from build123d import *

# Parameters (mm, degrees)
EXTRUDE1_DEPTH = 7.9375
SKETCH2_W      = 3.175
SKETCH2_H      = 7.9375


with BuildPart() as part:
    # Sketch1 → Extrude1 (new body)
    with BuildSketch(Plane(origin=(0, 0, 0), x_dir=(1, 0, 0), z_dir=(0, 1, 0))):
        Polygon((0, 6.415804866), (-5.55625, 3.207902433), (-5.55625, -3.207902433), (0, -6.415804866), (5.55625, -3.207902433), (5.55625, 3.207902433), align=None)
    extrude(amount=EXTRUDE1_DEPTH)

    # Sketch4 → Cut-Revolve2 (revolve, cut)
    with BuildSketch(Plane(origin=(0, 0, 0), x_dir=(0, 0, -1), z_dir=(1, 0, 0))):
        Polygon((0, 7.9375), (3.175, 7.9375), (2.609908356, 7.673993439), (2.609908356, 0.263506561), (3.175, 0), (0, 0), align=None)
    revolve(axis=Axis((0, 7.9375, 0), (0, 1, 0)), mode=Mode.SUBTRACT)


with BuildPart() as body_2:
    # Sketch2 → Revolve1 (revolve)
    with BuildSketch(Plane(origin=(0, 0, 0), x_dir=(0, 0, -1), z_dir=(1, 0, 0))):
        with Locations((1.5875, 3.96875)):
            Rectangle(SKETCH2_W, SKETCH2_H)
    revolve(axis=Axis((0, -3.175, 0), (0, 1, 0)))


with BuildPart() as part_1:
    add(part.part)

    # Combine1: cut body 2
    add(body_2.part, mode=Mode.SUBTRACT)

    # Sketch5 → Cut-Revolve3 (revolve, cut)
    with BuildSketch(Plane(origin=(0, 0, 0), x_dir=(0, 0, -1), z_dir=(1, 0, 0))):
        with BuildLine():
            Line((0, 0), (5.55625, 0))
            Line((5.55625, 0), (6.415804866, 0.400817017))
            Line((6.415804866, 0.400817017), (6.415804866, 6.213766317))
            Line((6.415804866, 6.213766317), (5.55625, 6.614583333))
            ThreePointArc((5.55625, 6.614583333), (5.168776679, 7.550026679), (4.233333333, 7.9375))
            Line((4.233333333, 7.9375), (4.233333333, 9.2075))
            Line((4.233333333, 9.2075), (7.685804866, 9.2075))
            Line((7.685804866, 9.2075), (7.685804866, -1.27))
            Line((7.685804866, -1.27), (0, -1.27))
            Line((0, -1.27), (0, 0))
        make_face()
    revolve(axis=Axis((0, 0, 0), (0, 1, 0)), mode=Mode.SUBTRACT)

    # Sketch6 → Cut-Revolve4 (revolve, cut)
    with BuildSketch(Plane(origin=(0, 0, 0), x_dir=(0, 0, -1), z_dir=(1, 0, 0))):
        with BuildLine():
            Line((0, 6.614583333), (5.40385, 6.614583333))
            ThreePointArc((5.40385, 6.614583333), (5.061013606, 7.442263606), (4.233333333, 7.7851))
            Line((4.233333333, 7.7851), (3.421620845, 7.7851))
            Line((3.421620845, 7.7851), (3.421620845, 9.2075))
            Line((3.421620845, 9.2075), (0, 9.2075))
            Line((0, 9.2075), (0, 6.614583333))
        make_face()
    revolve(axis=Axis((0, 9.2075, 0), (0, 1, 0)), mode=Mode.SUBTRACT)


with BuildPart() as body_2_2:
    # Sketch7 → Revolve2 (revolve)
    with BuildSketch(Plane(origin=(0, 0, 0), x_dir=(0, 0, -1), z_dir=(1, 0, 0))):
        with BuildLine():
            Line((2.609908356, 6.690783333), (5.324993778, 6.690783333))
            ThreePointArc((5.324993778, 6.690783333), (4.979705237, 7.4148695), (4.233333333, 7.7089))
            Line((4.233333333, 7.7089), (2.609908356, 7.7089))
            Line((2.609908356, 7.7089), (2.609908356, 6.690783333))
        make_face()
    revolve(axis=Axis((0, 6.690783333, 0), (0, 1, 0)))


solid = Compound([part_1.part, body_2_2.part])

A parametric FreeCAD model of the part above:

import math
import FreeCAD as App
import Part
import Sketcher
Q = App.Units.Quantity


def add_polygon(sketch, points):
    """Adds a closed chain of lines whose ends are joined by coincident constraints."""
    first, n = sketch.GeometryCount, len(points)
    for a, b in zip(points, points[1:] + points[:1]):
        sketch.addGeometry(Part.LineSegment(App.Vector(*a, 0), App.Vector(*b, 0)), False)
    for i in range(n):
        sketch.addConstraint(Sketcher.Constraint("Coincident", first + i, 2, first + (i + 1) % n, 1))

doc = App.newDocument("Part")
params = doc.addObject("Spreadsheet::Sheet", "Params")
for row, (alias, value) in enumerate([
    ("pad1_length", "0.3125 in"),
    ("sketch2_width", "0.3125 in"),
    ("sketch2_height", "0.125 in"),
    ("groove_angle", "360 deg"),
    ("sketch3_width", "0.3125 in"),
    ("sketch3_height", "0.125 in"),
    ("revolution_angle", "360 deg"),
    ("sketch4_width", "0.05 in"),
    ("sketch4_height", "0.21875 in"),
    ("groove2_angle", "360 deg"),
    ("sketch5_width", "0.056 in"),
    ("groove3_angle", "360 deg"),
    ("revolution2_angle", "360 deg"),
], start=1):
    params.set(f"A{row}", alias)
    params.set(f"B{row}", "=" + value)
    params.setAlias(f"B{row}", alias)

body = doc.addObject("PartDesign::Body", "Body")

# Sketch on XZ plane
sketch1 = doc.addObject("Sketcher::SketchObject", "Sketch")
body.addObject(sketch1)
sketch1.AttachmentSupport = (doc.XZ_Plane, [""])
sketch1.MapMode = "FlatFace"
add_polygon(sketch1, [(0, -6), (-6, -3), (-6, 3), (0, 6), (6, 3), (6, -3)])  # lines 0-5
sketch1.addConstraint(Sketcher.Constraint("Vertical", 1))
sketch1.addConstraint(Sketcher.Constraint("Vertical", 4))
sketch1.addConstraint(Sketcher.Constraint("Symmetric", 0, 2, 3, 2, -1, 1))
sketch1.addConstraint(Sketcher.Constraint("Symmetric", 2, 2, 5, 2, -1, 1))
sketch1.addConstraint(Sketcher.Constraint("PointOnObject", 2, 2, -2))
sketch1.addConstraint(Sketcher.Constraint("Parallel", 2, 5))
sketch1.addConstraint(Sketcher.Constraint("Horizontal", 1, 2, 3, 2))
sketch1.addConstraint(Sketcher.Constraint("Angle", 0, Q("150 deg")))
sketch1.addConstraint(Sketcher.Constraint("DistanceX", 0, 2, -1, 1, Q("0.21875 in")))
sketch1.addConstraint(Sketcher.Constraint("DistanceY", 1, 1, 1, 2, Q("6.415805 mm")))
pad1 = doc.addObject("PartDesign::Pad", "Pad")
body.addObject(pad1)
pad1.Profile = sketch1
pad1.setExpression("Length", "Params.pad1_length")
pad1.Reversed = True

# Sketch on YZ plane
sketch2 = doc.addObject("Sketcher::SketchObject", "Sketch001")
body.addObject(sketch2)
sketch2.AttachmentSupport = (doc.YZ_Plane, [""])
sketch2.MapMode = "FlatFace"
add_polygon(sketch2, [(7.9, -3.2), (7.9, 0), (0, 0), (0, -3.2), (0.3, -2.6), (7.7, -2.6)])  # lines 0-5
sketch2.addConstraint(Sketcher.Constraint("Vertical", 0))
sketch2.addConstraint(Sketcher.Constraint("Horizontal", 1))
sketch2.addConstraint(Sketcher.Constraint("Vertical", 2))
sketch2.addConstraint(Sketcher.Constraint("Horizontal", 4))
sketch2.addConstraint(Sketcher.Constraint("Coincident", 1, 2, -1, 1))
sketch2.addConstraint(Sketcher.Constraint("Horizontal", 2, 2, 5, 2))
sketch2.addConstraint(Sketcher.Constraint("Equal", 3, 5))
sketch2.addConstraint(Sketcher.Constraint("Angle", 3, Q("65 deg")))
sketch2.addConstraint(Sketcher.Constraint("DistanceX", 1, 2, 1, 1, Q("0.3125 in")))
sketch2.addConstraint(Sketcher.Constraint("DistanceY", 0, 1, 0, 2, Q("0.125 in")))
sketch2.addConstraint(Sketcher.Constraint("Distance", 3, Q("0.62351 mm")))
sketch2.setExpression("Constraints[14]", "Params.sketch2_width")
sketch2.setExpression("Constraints[15]", "Params.sketch2_height")
groove = doc.addObject("PartDesign::Groove", "Groove")
body.addObject(groove)
groove.Profile = sketch2
groove.ReferenceAxis = (sketch2, ["H_Axis"])
groove.setExpression("Angle", "Params.groove_angle")
body2 = doc.addObject("PartDesign::Body", "Body001")

# Sketch on YZ plane
sketch3 = doc.addObject("Sketcher::SketchObject", "Sketch002")
body2.addObject(sketch3)
sketch3.AttachmentSupport = (doc.getObject("YZ_Plane001"), [""])
sketch3.MapMode = "FlatFace"
add_polygon(sketch3, [(7.9, 0), (0, 0), (0, -3.2), (7.9, -3.2)])  # lines 0-3
sketch3.addConstraint(Sketcher.Constraint("Horizontal", 0))
sketch3.addConstraint(Sketcher.Constraint("Vertical", 1))
sketch3.addConstraint(Sketcher.Constraint("Horizontal", 2))
sketch3.addConstraint(Sketcher.Constraint("Vertical", 3))
sketch3.addConstraint(Sketcher.Constraint("Coincident", 0, 2, -1, 1))
sketch3.addConstraint(Sketcher.Constraint("DistanceX", 0, 2, 0, 1, Q("0.3125 in")))
sketch3.addConstraint(Sketcher.Constraint("DistanceY", 1, 2, 1, 1, Q("0.125 in")))
sketch3.setExpression("Constraints[9]", "Params.sketch3_width")
sketch3.setExpression("Constraints[10]", "Params.sketch3_height")
revolution = doc.addObject("PartDesign::Revolution", "Revolution")
body2.addObject(revolution)
revolution.Profile = sketch3
revolution.ReferenceAxis = (sketch3, ["H_Axis"])
revolution.setExpression("Angle", "Params.revolution_angle")
doc.recompute()

boolean = doc.addObject("PartDesign::Boolean", "Boolean")
body.addObject(boolean)
boolean.Type = "Cut"
boolean.addObjects([body2])

# Sketch on YZ plane
sketch4 = doc.addObject("Sketcher::SketchObject", "Sketch003")
body.addObject(sketch4)
sketch4.AttachmentSupport = (doc.YZ_Plane, [""])
sketch4.MapMode = "FlatFace"
sketch4.addGeometry(Part.LineSegment(App.Vector(0, -5.6, 0), App.Vector(0, 0, 0)), False)
sketch4.addGeometry(Part.LineSegment(App.Vector(0, 0, 0), App.Vector(-1.3, 0, 0)), False)
sketch4.addGeometry(Part.LineSegment(App.Vector(-1.3, 0, 0), App.Vector(-1.3, -7.7, 0)), False)
sketch4.addGeometry(Part.LineSegment(App.Vector(-1.3, -7.7, 0), App.Vector(9.2, -7.7, 0)), False)
sketch4.addGeometry(Part.LineSegment(App.Vector(9.2, -7.7, 0), App.Vector(9.2, -4.2, 0)), False)
sketch4.addGeometry(Part.LineSegment(App.Vector(9.2, -4.2, 0), App.Vector(7.9, -4.2, 0)), False)
sketch4.addGeometry(Part.ArcOfCircle(Part.Circle(App.Vector(6.6, -4.2, 0), App.Vector(0, 0, 1), 1.3), math.radians(-90), math.radians(0)), False)
sketch4.addGeometry(Part.LineSegment(App.Vector(6.6, -5.6, 0), App.Vector(6.2, -6.4, 0)), False)
sketch4.addGeometry(Part.LineSegment(App.Vector(6.2, -6.4, 0), App.Vector(0.4, -6.4, 0)), False)
sketch4.addGeometry(Part.LineSegment(App.Vector(0.4, -6.4, 0), App.Vector(0, -5.6, 0)), False)
sketch4.addConstraint(Sketcher.Constraint("Coincident", 0, 2, 1, 1))
sketch4.addConstraint(Sketcher.Constraint("Coincident", 1, 2, 2, 1))
sketch4.addConstraint(Sketcher.Constraint("Coincident", 2, 2, 3, 1))
sketch4.addConstraint(Sketcher.Constraint("Coincident", 3, 2, 4, 1))
sketch4.addConstraint(Sketcher.Constraint("Coincident", 4, 2, 5, 1))
sketch4.addConstraint(Sketcher.Constraint("Coincident", 5, 2, 6, 2))
sketch4.addConstraint(Sketcher.Constraint("Coincident", 6, 1, 7, 1))
sketch4.addConstraint(Sketcher.Constraint("Coincident", 7, 2, 8, 1))
sketch4.addConstraint(Sketcher.Constraint("Coincident", 8, 2, 9, 1))
sketch4.addConstraint(Sketcher.Constraint("Coincident", 9, 2, 0, 1))
sketch4.addConstraint(Sketcher.Constraint("Vertical", 0))
sketch4.addConstraint(Sketcher.Constraint("Horizontal", 1))
sketch4.addConstraint(Sketcher.Constraint("Vertical", 2))
sketch4.addConstraint(Sketcher.Constraint("Horizontal", 3))
sketch4.addConstraint(Sketcher.Constraint("Vertical", 4))
sketch4.addConstraint(Sketcher.Constraint("Horizontal", 5))
sketch4.addConstraint(Sketcher.Constraint("Horizontal", 8))
sketch4.addConstraint(Sketcher.Constraint("Coincident", 0, 2, -1, 1))
sketch4.addConstraint(Sketcher.Constraint("Horizontal", 6, 3, 4, 2))
sketch4.addConstraint(Sketcher.Constraint("Horizontal", 6, 1, 9, 2))
sketch4.addConstraint(Sketcher.Constraint("Equal", 1, 5))
sketch4.addConstraint(Sketcher.Constraint("Equal", 7, 9))
sketch4.addConstraint(Sketcher.Constraint("Angle", 7, Q("-115 deg")))
sketch4.addConstraint(Sketcher.Constraint("DistanceX", 1, 2, 1, 1, Q("0.05 in")))
sketch4.addConstraint(Sketcher.Constraint("DistanceY", 0, 1, 0, 2, Q("0.21875 in")))
sketch4.addConstraint(Sketcher.Constraint("DistanceY", 3, 2, 7, 2, Q("0.05 in")))
sketch4.addConstraint(Sketcher.Constraint("DistanceX", 3, 1, 3, 2, Q("0.4125 in")))
sketch4.addConstraint(Sketcher.Constraint("Radius", 6, Q("1.322917 mm")))
sketch4.addConstraint(Sketcher.Constraint("DistanceX", 8, 2, 8, 1, Q("5.812949 mm")))
sketch4.addConstraint(Sketcher.Constraint("DistanceY", 4, 1, 4, 2, Q("3.452472 mm")))
sketch4.setExpression("Constraints[23]", "Params.sketch4_width")
sketch4.setExpression("Constraints[24]", "Params.sketch4_height")
groove2 = doc.addObject("PartDesign::Groove", "Groove001")
body.addObject(groove2)
groove2.Profile = sketch4
groove2.ReferenceAxis = (sketch4, ["H_Axis"])
groove2.setExpression("Angle", "Params.groove2_angle")

# Sketch on YZ plane
sketch5 = doc.addObject("Sketcher::SketchObject", "Sketch004")
body.addObject(sketch5)
sketch5.AttachmentSupport = (doc.YZ_Plane, [""])
sketch5.MapMode = "FlatFace"
sketch5.addGeometry(Part.LineSegment(App.Vector(6.6, 0, 0), App.Vector(6.6, -5.4, 0)), False)
sketch5.addGeometry(Part.ArcOfCircle(Part.Circle(App.Vector(6.6, -4.2, 0), App.Vector(0, 0, 1), 1.2), math.radians(-90), math.radians(0)), False)
sketch5.addGeometry(Part.LineSegment(App.Vector(7.8, -4.2, 0), App.Vector(7.8, -3.4, 0)), False)
sketch5.addGeometry(Part.LineSegment(App.Vector(7.8, -3.4, 0), App.Vector(9.2, -3.4, 0)), False)
sketch5.addGeometry(Part.LineSegment(App.Vector(9.2, -3.4, 0), App.Vector(9.2, 0, 0)), False)
sketch5.addGeometry(Part.LineSegment(App.Vector(9.2, 0, 0), App.Vector(6.6, 0, 0)), False)
sketch5.addConstraint(Sketcher.Constraint("Coincident", 0, 2, 1, 1))
sketch5.addConstraint(Sketcher.Constraint("Tangent", 1, 2, 2, 1))
sketch5.addConstraint(Sketcher.Constraint("Coincident", 2, 2, 3, 1))
sketch5.addConstraint(Sketcher.Constraint("Coincident", 3, 2, 4, 1))
sketch5.addConstraint(Sketcher.Constraint("Coincident", 4, 2, 5, 1))
sketch5.addConstraint(Sketcher.Constraint("Coincident", 5, 2, 0, 1))
sketch5.addConstraint(Sketcher.Constraint("Vertical", 0))
sketch5.addConstraint(Sketcher.Constraint("Vertical", 2))
sketch5.addConstraint(Sketcher.Constraint("Horizontal", 3))
sketch5.addConstraint(Sketcher.Constraint("Vertical", 4))
sketch5.addConstraint(Sketcher.Constraint("Horizontal", 5))
sketch5.addConstraint(Sketcher.Constraint("PointOnObject", 4, 2, -1))
sketch5.addConstraint(Sketcher.Constraint("Vertical", 1, 3, 0, 2))
sketch5.addConstraint(Sketcher.Constraint("DistanceX", 3, 1, 3, 2, Q("0.056 in")))
sketch5.addConstraint(Sketcher.Constraint("DistanceX", -1, 1, 1, 2, Q("0.3065 in")))
sketch5.addConstraint(Sketcher.Constraint("Radius", 1, Q("1.170517 mm")))
sketch5.addConstraint(Sketcher.Constraint("DistanceY", 0, 2, 0, 1, Q("5.40385 mm")))
sketch5.addConstraint(Sketcher.Constraint("DistanceY", 4, 1, 4, 2, Q("3.421621 mm")))
sketch5.setExpression("Constraints[13]", "Params.sketch5_width")
groove3 = doc.addObject("PartDesign::Groove", "Groove002")
body.addObject(groove3)
groove3.Profile = sketch5
groove3.ReferenceAxis = (sketch5, ["H_Axis"])
groove3.setExpression("Angle", "Params.groove3_angle")
body3 = doc.addObject("PartDesign::Body", "Body002")

# Sketch on YZ plane
sketch6 = doc.addObject("Sketcher::SketchObject", "Sketch005")
body3.addObject(sketch6)
sketch6.AttachmentSupport = (doc.getObject("YZ_Plane002"), [""])
sketch6.MapMode = "FlatFace"
sketch6.addGeometry(Part.LineSegment(App.Vector(6.7, -2.6, 0), App.Vector(6.7, -5.3, 0)), False)
sketch6.addGeometry(Part.ArcOfCircle(Part.Circle(App.Vector(6.6, -4.2, 0), App.Vector(0, 0, 1), 1.1), math.radians(-86), math.radians(0)), False)
sketch6.addGeometry(Part.LineSegment(App.Vector(7.7, -4.2, 0), App.Vector(7.7, -2.6, 0)), False)
sketch6.addGeometry(Part.LineSegment(App.Vector(7.7, -2.6, 0), App.Vector(6.7, -2.6, 0)), False)
sketch6.addConstraint(Sketcher.Constraint("Coincident", 0, 2, 1, 1))
sketch6.addConstraint(Sketcher.Constraint("Tangent", 1, 2, 2, 1))
sketch6.addConstraint(Sketcher.Constraint("Coincident", 2, 2, 3, 1))
sketch6.addConstraint(Sketcher.Constraint("Coincident", 3, 2, 0, 1))
sketch6.addConstraint(Sketcher.Constraint("Vertical", 0))
sketch6.addConstraint(Sketcher.Constraint("Vertical", 2))
sketch6.addConstraint(Sketcher.Constraint("Horizontal", 3))
sketch6.addConstraint(Sketcher.Constraint("DistanceX", 1, 3, 0, 2, Q("0.003 in")))
sketch6.addConstraint(Sketcher.Constraint("DistanceX", -1, 1, 1, 2, Q("0.3035 in")))
sketch6.addConstraint(Sketcher.Constraint("Radius", 1, Q("1.094317 mm")))
sketch6.addConstraint(Sketcher.Constraint("DistanceY", 0, 2, 0, 1, Q("2.715085 mm")))
sketch6.addConstraint(Sketcher.Constraint("DistanceY", 2, 2, -1, 1, Q("2.609908 mm")))
revolution2 = doc.addObject("PartDesign::Revolution", "Revolution001")
body3.addObject(revolution2)
revolution2.Profile = sketch6
revolution2.ReferenceAxis = (sketch6, ["H_Axis"])
revolution2.setExpression("Angle", "Params.revolution2_angle")

doc.recompute()
